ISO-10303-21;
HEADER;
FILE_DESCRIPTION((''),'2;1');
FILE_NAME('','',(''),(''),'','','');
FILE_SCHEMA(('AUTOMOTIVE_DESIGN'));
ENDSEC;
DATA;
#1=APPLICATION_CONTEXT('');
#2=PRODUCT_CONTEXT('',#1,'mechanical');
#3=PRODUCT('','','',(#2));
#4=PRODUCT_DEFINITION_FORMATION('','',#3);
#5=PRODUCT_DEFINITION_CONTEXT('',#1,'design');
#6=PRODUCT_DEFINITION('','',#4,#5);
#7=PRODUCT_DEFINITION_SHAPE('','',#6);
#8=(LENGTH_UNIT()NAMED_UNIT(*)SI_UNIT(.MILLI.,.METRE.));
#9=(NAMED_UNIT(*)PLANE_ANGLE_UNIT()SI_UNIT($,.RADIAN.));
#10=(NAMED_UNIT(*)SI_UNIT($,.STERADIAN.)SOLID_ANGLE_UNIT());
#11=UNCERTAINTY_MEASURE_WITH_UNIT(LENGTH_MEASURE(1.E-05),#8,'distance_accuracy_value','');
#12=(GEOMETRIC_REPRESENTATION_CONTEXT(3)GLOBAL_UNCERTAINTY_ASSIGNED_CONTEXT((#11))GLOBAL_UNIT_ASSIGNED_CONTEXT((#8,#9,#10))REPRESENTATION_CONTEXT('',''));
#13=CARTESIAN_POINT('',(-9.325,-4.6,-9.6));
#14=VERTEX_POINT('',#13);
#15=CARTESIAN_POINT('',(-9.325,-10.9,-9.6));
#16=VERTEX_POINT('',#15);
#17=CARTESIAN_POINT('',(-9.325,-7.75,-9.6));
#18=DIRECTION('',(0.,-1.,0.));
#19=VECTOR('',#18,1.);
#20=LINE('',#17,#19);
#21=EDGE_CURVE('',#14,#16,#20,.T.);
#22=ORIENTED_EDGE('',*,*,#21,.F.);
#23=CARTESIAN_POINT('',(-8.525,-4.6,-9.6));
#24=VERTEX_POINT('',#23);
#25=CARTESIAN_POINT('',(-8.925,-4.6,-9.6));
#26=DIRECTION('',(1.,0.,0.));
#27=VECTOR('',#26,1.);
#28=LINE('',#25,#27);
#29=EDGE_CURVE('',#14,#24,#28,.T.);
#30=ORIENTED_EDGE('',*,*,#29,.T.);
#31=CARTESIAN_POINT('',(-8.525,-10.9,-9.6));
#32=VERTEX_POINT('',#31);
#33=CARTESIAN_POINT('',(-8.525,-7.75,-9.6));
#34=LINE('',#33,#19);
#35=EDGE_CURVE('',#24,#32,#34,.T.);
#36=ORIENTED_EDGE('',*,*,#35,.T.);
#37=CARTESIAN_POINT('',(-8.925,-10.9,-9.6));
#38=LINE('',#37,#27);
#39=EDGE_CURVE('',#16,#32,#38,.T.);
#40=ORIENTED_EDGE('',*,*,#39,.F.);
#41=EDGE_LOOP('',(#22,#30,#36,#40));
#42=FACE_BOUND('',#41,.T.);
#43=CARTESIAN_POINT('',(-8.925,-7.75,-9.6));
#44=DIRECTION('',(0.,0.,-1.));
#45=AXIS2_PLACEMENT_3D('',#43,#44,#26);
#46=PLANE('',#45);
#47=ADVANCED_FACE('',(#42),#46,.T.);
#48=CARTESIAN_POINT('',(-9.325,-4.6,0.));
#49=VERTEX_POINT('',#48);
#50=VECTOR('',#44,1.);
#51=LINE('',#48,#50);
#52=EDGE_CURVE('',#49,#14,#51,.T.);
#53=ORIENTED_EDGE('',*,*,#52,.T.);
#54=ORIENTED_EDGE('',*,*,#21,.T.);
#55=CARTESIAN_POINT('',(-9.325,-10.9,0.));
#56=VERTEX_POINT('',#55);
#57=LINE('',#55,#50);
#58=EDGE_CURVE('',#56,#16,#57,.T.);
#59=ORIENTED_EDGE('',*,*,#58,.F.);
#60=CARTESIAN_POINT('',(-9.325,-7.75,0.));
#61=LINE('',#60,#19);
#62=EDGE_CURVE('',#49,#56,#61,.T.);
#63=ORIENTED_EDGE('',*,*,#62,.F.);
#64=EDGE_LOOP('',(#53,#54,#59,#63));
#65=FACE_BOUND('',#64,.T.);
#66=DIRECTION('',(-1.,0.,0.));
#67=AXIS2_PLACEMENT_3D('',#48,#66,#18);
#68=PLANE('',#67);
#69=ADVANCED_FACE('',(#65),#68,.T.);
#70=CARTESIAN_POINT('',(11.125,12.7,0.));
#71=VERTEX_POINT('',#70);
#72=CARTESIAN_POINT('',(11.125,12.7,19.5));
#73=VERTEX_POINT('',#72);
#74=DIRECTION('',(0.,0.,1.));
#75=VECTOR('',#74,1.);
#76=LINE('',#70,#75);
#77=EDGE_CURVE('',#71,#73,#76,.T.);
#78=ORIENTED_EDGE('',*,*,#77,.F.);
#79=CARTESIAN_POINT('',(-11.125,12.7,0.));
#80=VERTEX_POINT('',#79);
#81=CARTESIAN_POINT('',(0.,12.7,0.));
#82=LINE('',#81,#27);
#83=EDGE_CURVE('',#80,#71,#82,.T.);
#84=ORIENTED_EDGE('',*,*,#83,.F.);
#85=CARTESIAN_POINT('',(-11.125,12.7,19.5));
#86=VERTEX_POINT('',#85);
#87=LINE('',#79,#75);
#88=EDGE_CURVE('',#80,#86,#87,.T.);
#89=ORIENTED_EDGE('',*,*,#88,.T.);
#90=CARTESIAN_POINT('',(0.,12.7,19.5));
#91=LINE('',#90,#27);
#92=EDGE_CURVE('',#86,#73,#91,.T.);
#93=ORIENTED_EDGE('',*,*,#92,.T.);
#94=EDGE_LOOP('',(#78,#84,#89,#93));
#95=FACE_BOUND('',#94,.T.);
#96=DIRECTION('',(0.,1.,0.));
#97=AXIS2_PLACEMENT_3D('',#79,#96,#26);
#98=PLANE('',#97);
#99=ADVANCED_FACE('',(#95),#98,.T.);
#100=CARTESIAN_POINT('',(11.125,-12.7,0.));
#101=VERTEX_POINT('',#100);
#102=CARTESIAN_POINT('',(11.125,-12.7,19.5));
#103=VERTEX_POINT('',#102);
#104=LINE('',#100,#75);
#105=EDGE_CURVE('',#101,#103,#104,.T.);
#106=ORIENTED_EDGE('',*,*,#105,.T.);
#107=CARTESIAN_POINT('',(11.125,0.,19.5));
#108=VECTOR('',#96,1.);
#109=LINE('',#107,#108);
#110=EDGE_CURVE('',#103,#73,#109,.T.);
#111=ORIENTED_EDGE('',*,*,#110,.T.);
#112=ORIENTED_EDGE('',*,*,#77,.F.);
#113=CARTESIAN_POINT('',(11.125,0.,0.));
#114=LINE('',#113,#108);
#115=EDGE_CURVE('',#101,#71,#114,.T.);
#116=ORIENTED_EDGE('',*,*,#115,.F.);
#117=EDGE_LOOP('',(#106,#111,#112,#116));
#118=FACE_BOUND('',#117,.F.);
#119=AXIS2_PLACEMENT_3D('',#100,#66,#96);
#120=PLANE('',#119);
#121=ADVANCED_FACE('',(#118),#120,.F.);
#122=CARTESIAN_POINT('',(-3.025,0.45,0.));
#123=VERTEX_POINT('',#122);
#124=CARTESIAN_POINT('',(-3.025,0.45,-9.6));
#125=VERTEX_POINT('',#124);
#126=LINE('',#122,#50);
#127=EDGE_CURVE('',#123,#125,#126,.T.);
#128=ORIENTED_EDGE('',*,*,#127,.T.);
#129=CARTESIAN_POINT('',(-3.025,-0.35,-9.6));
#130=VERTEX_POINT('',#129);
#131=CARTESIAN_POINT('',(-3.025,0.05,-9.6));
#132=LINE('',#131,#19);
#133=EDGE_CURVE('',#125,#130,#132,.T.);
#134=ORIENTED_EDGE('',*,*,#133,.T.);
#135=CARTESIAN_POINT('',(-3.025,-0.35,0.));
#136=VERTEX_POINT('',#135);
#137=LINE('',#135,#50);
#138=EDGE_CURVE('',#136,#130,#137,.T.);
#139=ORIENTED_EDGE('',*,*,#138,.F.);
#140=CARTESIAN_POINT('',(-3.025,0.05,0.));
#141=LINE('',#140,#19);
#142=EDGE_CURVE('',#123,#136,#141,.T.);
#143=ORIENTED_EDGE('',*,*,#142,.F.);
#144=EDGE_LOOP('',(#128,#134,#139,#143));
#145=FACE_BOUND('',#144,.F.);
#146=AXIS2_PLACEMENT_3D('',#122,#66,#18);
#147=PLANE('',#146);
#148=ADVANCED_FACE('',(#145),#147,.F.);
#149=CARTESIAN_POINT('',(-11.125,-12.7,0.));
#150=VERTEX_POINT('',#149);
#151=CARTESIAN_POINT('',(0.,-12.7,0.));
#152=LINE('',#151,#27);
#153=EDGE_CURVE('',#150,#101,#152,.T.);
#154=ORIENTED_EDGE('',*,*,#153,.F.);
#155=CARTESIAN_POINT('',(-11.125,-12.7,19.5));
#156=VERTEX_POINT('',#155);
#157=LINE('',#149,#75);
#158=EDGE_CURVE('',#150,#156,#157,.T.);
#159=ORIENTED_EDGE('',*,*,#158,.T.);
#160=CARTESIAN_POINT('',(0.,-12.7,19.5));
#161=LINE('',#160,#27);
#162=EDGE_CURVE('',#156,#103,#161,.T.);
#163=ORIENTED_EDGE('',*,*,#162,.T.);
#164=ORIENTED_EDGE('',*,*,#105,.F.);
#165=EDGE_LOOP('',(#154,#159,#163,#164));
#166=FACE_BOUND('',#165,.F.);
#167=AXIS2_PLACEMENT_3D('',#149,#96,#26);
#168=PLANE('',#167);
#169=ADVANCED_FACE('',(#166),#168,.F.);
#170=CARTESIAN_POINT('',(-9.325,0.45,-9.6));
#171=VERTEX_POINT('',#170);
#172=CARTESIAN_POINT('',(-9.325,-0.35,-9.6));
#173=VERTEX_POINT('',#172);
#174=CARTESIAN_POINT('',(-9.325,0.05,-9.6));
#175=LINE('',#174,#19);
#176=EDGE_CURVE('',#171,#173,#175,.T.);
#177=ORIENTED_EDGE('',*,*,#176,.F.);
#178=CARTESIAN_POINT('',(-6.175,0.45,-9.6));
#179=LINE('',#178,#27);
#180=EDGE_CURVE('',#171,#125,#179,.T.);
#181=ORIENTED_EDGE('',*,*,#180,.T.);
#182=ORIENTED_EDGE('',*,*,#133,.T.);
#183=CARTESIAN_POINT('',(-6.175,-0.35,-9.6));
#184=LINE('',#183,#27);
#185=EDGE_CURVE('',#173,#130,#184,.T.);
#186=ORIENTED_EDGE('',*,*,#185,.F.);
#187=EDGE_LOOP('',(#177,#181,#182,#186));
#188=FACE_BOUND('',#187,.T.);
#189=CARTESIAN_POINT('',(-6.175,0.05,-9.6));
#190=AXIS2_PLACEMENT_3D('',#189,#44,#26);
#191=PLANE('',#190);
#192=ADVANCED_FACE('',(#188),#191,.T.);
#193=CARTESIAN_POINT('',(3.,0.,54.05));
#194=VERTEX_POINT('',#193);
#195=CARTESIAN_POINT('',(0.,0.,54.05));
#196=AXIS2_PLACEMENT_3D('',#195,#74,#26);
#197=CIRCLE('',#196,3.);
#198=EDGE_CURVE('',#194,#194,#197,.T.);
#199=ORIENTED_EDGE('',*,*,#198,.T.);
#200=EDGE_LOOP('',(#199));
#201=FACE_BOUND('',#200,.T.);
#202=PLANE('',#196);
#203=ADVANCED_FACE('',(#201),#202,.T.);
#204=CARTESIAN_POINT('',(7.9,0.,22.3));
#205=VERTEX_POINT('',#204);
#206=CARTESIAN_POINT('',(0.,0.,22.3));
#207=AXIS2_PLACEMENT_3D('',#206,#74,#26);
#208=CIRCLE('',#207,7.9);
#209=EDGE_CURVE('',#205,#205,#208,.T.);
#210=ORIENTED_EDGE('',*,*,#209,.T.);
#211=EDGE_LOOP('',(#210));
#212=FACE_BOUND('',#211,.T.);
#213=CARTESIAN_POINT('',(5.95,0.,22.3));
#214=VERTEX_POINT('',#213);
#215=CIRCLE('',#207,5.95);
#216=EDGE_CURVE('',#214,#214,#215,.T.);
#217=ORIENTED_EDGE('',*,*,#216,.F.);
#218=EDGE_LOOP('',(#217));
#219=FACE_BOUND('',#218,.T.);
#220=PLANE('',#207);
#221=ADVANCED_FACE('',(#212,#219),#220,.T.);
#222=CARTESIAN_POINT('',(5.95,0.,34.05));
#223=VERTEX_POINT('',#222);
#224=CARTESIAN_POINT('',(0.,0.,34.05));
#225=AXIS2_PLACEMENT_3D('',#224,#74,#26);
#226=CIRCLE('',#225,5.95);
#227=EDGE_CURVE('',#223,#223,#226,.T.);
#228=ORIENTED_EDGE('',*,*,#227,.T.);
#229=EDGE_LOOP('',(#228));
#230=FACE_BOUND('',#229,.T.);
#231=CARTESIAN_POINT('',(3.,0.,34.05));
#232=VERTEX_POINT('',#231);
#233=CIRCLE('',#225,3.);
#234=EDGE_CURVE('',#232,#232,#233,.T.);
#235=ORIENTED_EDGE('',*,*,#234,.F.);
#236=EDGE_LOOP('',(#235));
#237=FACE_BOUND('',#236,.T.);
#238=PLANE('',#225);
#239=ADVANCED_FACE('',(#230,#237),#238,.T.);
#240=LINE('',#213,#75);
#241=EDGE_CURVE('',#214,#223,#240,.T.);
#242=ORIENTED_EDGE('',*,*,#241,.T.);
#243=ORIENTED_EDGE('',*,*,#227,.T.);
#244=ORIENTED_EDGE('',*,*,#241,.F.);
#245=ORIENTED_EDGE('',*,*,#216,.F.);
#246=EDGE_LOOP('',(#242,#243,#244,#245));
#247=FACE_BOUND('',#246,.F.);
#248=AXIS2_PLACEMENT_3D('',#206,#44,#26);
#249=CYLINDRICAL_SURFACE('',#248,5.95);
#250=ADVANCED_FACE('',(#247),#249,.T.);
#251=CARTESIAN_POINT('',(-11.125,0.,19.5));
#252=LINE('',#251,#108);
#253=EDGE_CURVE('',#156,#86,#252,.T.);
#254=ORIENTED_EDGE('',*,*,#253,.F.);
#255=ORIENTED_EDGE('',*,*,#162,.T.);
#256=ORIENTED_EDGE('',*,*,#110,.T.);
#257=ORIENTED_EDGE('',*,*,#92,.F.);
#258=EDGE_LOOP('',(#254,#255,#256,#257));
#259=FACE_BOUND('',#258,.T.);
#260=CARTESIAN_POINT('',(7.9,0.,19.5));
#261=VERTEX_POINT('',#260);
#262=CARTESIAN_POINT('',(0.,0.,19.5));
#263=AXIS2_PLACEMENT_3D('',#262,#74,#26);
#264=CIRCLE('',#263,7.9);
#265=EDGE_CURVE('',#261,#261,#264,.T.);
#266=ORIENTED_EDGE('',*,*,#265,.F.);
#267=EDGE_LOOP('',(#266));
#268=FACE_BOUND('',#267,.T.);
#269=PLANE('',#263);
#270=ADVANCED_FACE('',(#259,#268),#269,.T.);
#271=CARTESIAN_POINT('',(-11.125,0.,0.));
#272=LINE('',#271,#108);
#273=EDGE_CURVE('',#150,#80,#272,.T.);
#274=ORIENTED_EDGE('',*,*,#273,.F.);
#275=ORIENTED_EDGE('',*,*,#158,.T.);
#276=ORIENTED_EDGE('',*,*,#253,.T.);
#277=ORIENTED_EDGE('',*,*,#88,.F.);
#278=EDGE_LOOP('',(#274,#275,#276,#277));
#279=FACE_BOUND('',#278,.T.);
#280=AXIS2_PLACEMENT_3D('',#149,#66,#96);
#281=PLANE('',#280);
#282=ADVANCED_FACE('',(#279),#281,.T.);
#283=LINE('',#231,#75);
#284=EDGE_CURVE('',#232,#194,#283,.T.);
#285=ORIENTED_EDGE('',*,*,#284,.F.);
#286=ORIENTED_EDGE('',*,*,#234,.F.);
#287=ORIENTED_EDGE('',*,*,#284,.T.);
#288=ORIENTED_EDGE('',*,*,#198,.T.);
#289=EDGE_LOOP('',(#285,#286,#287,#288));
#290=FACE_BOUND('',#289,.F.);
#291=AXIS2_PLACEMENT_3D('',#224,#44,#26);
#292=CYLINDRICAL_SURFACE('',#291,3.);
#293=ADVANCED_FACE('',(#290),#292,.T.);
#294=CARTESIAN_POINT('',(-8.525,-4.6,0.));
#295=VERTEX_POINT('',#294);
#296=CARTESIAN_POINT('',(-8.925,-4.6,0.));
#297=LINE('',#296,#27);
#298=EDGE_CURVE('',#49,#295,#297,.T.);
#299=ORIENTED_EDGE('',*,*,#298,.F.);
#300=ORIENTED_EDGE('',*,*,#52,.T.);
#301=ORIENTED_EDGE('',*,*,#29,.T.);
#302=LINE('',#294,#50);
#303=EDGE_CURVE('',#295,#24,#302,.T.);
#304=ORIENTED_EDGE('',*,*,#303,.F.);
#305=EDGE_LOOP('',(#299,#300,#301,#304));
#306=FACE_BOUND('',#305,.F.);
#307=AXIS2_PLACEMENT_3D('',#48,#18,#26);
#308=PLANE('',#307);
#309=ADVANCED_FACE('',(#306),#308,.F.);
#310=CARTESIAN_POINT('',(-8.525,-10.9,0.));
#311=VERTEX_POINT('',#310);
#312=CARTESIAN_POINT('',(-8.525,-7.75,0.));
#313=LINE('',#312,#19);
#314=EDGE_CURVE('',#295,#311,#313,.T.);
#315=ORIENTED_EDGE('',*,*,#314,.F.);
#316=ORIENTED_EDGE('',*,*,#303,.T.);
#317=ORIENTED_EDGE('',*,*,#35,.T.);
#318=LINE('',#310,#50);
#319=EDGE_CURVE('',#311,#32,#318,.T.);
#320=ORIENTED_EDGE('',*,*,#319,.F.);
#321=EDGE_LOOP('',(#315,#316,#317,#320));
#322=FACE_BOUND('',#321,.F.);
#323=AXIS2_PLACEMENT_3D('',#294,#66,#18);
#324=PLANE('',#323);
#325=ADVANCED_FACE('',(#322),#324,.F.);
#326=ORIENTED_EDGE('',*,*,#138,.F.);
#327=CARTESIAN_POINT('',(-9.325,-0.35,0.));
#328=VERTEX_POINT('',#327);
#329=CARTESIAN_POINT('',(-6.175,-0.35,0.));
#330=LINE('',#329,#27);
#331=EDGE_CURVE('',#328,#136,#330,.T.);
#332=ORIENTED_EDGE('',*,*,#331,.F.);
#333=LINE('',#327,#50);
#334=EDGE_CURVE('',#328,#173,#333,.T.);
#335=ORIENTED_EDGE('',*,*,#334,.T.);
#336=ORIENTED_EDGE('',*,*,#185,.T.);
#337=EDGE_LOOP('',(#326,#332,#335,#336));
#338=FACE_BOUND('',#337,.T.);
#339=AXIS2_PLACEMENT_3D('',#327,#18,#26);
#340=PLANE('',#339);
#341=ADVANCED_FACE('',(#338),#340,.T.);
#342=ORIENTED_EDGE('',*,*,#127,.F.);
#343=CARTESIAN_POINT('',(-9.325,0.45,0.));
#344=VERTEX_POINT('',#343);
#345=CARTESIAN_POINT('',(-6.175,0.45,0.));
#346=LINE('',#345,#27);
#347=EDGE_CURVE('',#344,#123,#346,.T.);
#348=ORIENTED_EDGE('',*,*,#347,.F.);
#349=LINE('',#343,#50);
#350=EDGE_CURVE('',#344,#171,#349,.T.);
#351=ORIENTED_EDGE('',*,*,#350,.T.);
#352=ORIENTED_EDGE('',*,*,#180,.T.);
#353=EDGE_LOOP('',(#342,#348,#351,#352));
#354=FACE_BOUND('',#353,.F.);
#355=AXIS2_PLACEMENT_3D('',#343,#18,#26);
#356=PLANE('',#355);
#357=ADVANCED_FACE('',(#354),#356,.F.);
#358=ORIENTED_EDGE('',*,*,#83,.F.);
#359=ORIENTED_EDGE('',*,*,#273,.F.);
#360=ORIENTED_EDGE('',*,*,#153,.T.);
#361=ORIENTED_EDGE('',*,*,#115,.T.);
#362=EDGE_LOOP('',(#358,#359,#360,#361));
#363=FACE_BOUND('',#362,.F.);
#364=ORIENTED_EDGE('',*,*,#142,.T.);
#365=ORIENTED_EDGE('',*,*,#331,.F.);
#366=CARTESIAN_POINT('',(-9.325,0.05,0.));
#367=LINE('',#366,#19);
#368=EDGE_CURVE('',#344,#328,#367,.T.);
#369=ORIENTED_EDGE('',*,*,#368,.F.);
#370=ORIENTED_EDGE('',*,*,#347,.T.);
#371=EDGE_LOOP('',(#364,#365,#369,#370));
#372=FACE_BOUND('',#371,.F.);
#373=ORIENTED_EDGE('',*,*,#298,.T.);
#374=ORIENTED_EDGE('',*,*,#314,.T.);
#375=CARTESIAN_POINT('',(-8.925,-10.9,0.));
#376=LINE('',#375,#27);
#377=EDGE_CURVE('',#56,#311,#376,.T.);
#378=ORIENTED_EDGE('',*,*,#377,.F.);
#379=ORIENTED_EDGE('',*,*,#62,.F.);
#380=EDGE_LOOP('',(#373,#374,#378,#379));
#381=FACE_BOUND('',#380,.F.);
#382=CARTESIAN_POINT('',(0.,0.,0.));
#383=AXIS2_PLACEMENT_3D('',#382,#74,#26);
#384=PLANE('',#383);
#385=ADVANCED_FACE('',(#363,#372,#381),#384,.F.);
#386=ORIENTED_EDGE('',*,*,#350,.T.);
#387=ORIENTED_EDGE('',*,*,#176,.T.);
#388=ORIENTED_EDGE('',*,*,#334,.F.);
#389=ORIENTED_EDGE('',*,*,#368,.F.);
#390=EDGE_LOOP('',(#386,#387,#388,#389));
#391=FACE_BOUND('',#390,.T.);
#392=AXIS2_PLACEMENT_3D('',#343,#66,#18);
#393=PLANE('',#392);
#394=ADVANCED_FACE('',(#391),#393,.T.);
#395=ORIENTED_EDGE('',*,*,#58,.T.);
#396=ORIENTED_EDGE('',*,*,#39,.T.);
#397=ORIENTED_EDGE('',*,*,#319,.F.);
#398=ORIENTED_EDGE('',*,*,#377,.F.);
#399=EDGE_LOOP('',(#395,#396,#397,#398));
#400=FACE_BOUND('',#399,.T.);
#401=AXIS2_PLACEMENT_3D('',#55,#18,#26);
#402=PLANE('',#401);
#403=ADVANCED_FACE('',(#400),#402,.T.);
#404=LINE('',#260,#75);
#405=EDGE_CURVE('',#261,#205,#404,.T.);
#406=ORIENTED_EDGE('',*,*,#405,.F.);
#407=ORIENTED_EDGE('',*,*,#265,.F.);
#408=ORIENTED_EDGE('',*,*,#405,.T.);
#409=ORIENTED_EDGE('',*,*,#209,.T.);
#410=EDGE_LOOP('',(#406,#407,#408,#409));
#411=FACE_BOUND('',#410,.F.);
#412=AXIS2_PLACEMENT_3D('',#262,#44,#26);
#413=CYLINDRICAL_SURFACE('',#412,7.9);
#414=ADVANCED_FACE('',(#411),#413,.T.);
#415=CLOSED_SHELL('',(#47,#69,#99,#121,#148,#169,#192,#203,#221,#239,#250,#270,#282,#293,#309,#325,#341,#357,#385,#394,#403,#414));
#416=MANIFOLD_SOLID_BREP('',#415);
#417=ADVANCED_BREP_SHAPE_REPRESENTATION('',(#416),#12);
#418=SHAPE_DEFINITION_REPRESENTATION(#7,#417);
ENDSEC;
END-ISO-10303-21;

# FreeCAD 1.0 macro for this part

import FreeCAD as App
import Part
import Sketcher

V = App.Vector
Q = App.Units.Quantity


def add_polygon(sketch, points):
    """Adds a closed chain of lines whose ends are joined by coincident constraints."""
    first, n = sketch.GeometryCount, len(points)
    for a, b in zip(points, points[1:] + points[:1]):
        sketch.addGeometry(Part.LineSegment(App.Vector(*a, 0), App.Vector(*b, 0)), False)
    for i in range(n):
        sketch.addConstraint(Sketcher.Constraint("Coincident", first + i, 2, first + (i + 1) % n, 1))

doc = App.newDocument("Part")
params = doc.addObject("Spreadsheet::Sheet", "Params")
for row, (alias, value) in enumerate([
    ("sketch1_height", "25.4 mm"),
    ("sketch1_width", "22.25 mm"),
    ("pad1_length", "19.5 mm"),
    ("sketch2_diameter", "15.8 mm"),
    ("pad2_length", "2.8 mm"),
    ("sketch3_diameter", "11.9 mm"),
    ("pad3_length", "11.75 mm"),
    ("sketch4_diameter", "6 mm"),
    ("pad4_length", "20 mm"),
    ("sketch5_width", "0.8 mm"),
    ("sketch5_width2", "6.3 mm"),
    ("pad5_length", "9.6 mm"),
], start=1):
    params.set(f"A{row}", alias)
    params.set(f"B{row}", "=" + value)
    params.setAlias(f"B{row}", alias)

body = doc.addObject("PartDesign::Body", "Body")

# Sketch on XY plane
sketch1 = body.newObject("Sketcher::SketchObject", "Sketch")
sketch1.AttachmentSupport = (doc.getObject("XY_Plane"), [""])
sketch1.MapMode = "FlatFace"
add_polygon(sketch1, [(-11.125, 12.7), (-11.125, -12.7), (11.125, -12.7), (11.125, 12.7)])  # lines 0-3
sketch1.addConstraint([
    Sketcher.Constraint("Vertical", 0),
    Sketcher.Constraint("Horizontal", 1),
    Sketcher.Constraint("Vertical", 2),
    Sketcher.Constraint("Horizontal", 3),
    Sketcher.Constraint("Symmetric", 0, 2, 2, 2, -1, 1),
    Sketcher.Constraint("DistanceY", 0, 2, 0, 1, Q("25.4 mm")),
    Sketcher.Constraint("DistanceX", 1, 1, 1, 2, Q("22.25 mm")),
])
sketch1.setExpression("Constraints[9]", "Params.sketch1_height")
sketch1.setExpression("Constraints[10]", "Params.sketch1_width")
pad1 = body.newObject("PartDesign::Pad", "Pad")
pad1.Profile = sketch1
pad1.setExpression("Length", "Params.pad1_length")

# Sketch on XY plane
sketch2 = body.newObject("Sketcher::SketchObject", "Sketch001")
sketch2.AttachmentSupport = (doc.getObject("XY_Plane"), [""])
sketch2.MapMode = "FlatFace"
sketch2.AttachmentOffset = App.Placement(V(0, 0, 19.5), App.Rotation())
sketch2.addGeometry(Part.Circle(V(0, 0, 0), V(0, 0, 1), 7.9), False)
sketch2.addConstraint([
    Sketcher.Constraint("Coincident", 0, 3, -1, 1),
    Sketcher.Constraint("Diameter", 0, Q("15.8 mm")),
])
sketch2.setExpression("Constraints[1]", "Params.sketch2_diameter")
pad2 = body.newObject("PartDesign::Pad", "Pad001")
pad2.Profile = sketch2
pad2.setExpression("Length", "Params.pad2_length")

# Sketch on XY plane
sketch3 = body.newObject("Sketcher::SketchObject", "Sketch002")
sketch3.AttachmentSupport = (doc.getObject("XY_Plane"), [""])
sketch3.MapMode = "FlatFace"
sketch3.AttachmentOffset = App.Placement(V(0, 0, 22.3), App.Rotation())
sketch3.addGeometry(Part.Circle(V(0, 0, 0), V(0, 0, 1), 5.95), False)
sketch3.addConstraint([
    Sketcher.Constraint("Coincident", 0, 3, -1, 1),
    Sketcher.Constraint("Diameter", 0, Q("11.9 mm")),
])
sketch3.setExpression("Constraints[1]", "Params.sketch3_diameter")
pad3 = body.newObject("PartDesign::Pad", "Pad002")
pad3.Profile = sketch3
pad3.setExpression("Length", "Params.pad3_length")

# Sketch on XY plane
sketch4 = body.newObject("Sketcher::SketchObject", "Sketch003")
sketch4.AttachmentSupport = (doc.getObject("XY_Plane"), [""])
sketch4.MapMode = "FlatFace"
sketch4.AttachmentOffset = App.Placement(V(0, 0, 34.05), App.Rotation())
sketch4.addGeometry(Part.Circle(V(0, 0, 0), V(0, 0, 1), 3), False)
sketch4.addConstraint([
    Sketcher.Constraint("Coincident", 0, 3, -1, 1),
    Sketcher.Constraint("Diameter", 0, Q("6 mm")),
])
sketch4.setExpression("Constraints[1]", "Params.sketch4_diameter")
pad4 = body.newObject("PartDesign::Pad", "Pad003")
pad4.Profile = sketch4
pad4.setExpression("Length", "Params.pad4_length")

# Sketch on XY plane
sketch5 = body.newObject("Sketcher::SketchObject", "Sketch004")
sketch5.AttachmentSupport = (doc.getObject("XY_Plane"), [""])
sketch5.MapMode = "FlatFace"
add_polygon(sketch5, [(-9.325, -10.9), (-9.325, -4.6), (-8.525, -4.6), (-8.525, -10.9)])  # lines 0-3
add_polygon(sketch5, [(-9.325, -0.35), (-9.325, 0.45), (-3.025, 0.45), (-3.025, -0.35)])  # lines 4-7
sketch5.addConstraint([
    Sketcher.Constraint("Vertical", 0),
    Sketcher.Constraint("Horizontal", 1),
    Sketcher.Constraint("Vertical", 2),
    Sketcher.Constraint("Horizontal", 3),
    Sketcher.Constraint("Vertical", 4),
    Sketcher.Constraint("Horizontal", 5),
    Sketcher.Constraint("Vertical", 6),
    Sketcher.Constraint("Horizontal", 7),
    Sketcher.Constraint("Vertical", 3, 2, 4, 2),
    Sketcher.Constraint("Equal", 7, 0),
    Sketcher.Constraint("Equal", 3, 4),
    Sketcher.Constraint("DistanceX", 1, 1, 1, 2, Q("0.8 mm")),
    Sketcher.Constraint("DistanceX", 5, 1, 5, 2, Q("6.3 mm")),
    Sketcher.Constraint("DistanceY", 0, 2, -1, 1, Q("4.6 mm")),
    Sketcher.Constraint("DistanceY", -1, 1, 4, 2, Q("0.45 mm")),
    Sketcher.Constraint("DistanceX", 0, 2, -1, 1, Q("9.325 mm")),
])
sketch5.setExpression("Constraints[19]", "Params.sketch5_width")
sketch5.setExpression("Constraints[20]", "Params.sketch5_width2")
pad5 = body.newObject("PartDesign::Pad", "Pad004")
pad5.Profile = sketch5
pad5.setExpression("Length", "Params.pad5_length")
pad5.Reversed = True

doc.recompute()
